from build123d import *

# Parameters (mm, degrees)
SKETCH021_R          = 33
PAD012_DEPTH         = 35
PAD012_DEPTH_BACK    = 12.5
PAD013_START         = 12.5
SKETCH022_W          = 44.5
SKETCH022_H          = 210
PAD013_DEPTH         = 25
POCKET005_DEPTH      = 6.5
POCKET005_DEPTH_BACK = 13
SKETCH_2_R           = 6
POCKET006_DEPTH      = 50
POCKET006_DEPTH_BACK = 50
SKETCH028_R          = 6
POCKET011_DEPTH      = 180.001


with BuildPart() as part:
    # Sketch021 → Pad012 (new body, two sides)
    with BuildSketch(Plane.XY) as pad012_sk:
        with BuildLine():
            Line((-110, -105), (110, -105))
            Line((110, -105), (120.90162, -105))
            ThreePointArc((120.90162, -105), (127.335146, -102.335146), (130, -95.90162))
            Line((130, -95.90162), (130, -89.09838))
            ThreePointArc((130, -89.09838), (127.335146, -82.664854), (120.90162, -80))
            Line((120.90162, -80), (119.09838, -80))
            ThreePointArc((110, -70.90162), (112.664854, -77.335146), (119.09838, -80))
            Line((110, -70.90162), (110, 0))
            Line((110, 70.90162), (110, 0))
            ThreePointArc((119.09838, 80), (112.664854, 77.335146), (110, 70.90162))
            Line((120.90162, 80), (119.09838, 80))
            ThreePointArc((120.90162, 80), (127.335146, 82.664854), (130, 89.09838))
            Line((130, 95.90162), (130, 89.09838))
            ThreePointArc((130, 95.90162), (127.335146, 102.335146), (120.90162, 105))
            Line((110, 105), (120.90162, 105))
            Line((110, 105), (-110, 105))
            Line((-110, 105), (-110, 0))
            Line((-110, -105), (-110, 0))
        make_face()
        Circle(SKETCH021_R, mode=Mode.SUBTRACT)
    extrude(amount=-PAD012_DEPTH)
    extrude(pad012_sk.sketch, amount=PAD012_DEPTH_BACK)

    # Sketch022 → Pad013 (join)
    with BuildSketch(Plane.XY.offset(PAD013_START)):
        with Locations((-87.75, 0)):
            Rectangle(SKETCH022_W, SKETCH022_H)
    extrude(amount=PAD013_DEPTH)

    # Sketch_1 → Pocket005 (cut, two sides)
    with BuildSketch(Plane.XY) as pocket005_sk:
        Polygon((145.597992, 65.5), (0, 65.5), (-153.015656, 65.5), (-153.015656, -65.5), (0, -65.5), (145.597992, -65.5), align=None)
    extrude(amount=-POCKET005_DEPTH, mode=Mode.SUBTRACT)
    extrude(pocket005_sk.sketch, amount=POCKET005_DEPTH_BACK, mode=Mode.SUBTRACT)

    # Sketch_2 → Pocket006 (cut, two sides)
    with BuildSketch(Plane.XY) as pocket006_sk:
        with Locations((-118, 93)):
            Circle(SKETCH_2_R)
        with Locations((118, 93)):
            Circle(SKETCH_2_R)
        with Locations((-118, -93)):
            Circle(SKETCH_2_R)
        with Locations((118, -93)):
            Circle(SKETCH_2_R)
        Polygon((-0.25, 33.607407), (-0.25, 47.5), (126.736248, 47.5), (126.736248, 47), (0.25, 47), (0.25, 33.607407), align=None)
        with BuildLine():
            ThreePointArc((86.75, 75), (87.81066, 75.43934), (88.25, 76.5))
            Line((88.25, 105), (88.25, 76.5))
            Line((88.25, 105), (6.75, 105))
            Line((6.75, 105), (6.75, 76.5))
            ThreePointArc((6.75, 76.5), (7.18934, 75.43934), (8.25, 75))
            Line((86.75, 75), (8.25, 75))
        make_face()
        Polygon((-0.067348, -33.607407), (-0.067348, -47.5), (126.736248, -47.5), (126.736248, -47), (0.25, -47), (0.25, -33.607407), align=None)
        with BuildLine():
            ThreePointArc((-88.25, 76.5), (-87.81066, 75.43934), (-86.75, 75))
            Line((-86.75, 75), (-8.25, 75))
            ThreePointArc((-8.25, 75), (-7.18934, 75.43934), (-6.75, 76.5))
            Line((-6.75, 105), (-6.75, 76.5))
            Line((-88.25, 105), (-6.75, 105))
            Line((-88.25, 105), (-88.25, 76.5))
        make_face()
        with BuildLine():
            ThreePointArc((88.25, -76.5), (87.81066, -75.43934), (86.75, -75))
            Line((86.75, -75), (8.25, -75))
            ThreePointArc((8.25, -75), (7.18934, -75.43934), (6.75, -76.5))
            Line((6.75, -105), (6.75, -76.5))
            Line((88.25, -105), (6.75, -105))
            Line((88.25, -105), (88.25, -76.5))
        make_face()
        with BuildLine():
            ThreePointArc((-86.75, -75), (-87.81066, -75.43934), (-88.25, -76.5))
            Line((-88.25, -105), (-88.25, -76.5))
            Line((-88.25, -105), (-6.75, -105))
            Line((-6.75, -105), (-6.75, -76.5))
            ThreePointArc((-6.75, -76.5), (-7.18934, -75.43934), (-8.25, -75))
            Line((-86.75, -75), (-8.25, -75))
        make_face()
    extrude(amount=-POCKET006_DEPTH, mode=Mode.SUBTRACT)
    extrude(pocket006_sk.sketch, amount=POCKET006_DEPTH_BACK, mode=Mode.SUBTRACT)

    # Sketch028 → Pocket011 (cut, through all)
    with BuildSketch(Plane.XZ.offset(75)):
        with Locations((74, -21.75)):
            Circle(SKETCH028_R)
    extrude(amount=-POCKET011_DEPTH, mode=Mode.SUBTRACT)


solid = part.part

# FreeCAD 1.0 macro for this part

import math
import FreeCAD as App
import Part
import Sketcher

doc = App.newDocument("Part")
body = doc.addObject("PartDesign::Body", "Body")

# Sketch on XY plane
sketch1 = body.newObject("Sketcher::SketchObject", "Sketch")
sketch1.AttachmentSupport = (doc.getObject("XY_Plane"), [""])
sketch1.MapMode = "FlatFace"
sketch1.addGeometry(Part.LineSegment(App.Vector(-110, -105, 0), App.Vector(120.9, -105, 0)), False)
sketch1.addGeometry(Part.ArcOfCircle(Part.Circle(App.Vector(120.9, -95.9, 0), App.Vector(0, 0, 1), 9.1), math.radians(-90), math.radians(0)), False)
sketch1.addGeometry(Part.LineSegment(App.Vector(130, -95.9, 0), App.Vector(130, -89.1, 0)), False)
sketch1.addGeometry(Part.ArcOfCircle(Part.Circle(App.Vector(120.9, -89.1, 0), App.Vector(0, 0, 1), 9.1), math.radians(0), math.radians(90)), False)
sketch1.addGeometry(Part.LineSegment(App.Vector(120.9, -80, 0), App.Vector(119.1, -80, 0)), False)
sketch1.addGeometry(Part.ArcOfCircle(Part.Circle(App.Vector(119.1, -70.9, 0), App.Vector(0, 0, 1), 9.1), math.radians(-180), math.radians(-90)), False)
sketch1.addGeometry(Part.LineSegment(App.Vector(110, -70.9, 0), App.Vector(110, 70.9, 0)), False)
sketch1.addGeometry(Part.ArcOfCircle(Part.Circle(App.Vector(119.1, 70.9, 0), App.Vector(0, 0, 1), 9.1), math.radians(90), math.radians(180)), False)
sketch1.addGeometry(Part.LineSegment(App.Vector(119.1, 80, 0), App.Vector(120.9, 80, 0)), False)
sketch1.addGeometry(Part.ArcOfCircle(Part.Circle(App.Vector(120.9, 89.1, 0), App.Vector(0, 0, 1), 9.1), math.radians(-90), math.radians(0)), False)
sketch1.addGeometry(Part.LineSegment(App.Vector(130, 89.1, 0), App.Vector(130, 95.9, 0)), False)
sketch1.addGeometry(Part.ArcOfCircle(Part.Circle(App.Vector(120.9, 95.9, 0), App.Vector(0, 0, 1), 9.1), math.radians(0), math.radians(90)), False)
sketch1.addGeometry(Part.LineSegment(App.Vector(120.9, 105, 0), App.Vector(-110, 105, 0)), False)
sketch1.addGeometry(Part.LineSegment(App.Vector(-110, 105, 0), App.Vector(-110, -105, 0)), False)
sketch1.addGeometry(Part.Circle(App.Vector(0, 0, 0), App.Vector(0, 0, 1), 33), False)
sketch1.addConstraint(Sketcher.Constraint("Tangent", 0, 2, 1, 1))
sketch1.addConstraint(Sketcher.Constraint("Tangent", 1, 2, 2, 1))
sketch1.addConstraint(Sketcher.Constraint("Tangent", 2, 2, 3, 1))
sketch1.addConstraint(Sketcher.Constraint("Tangent", 3, 2, 4, 1))
sketch1.addConstraint(Sketcher.Constraint("Tangent", 4, 2, 5, 2))
sketch1.addConstraint(Sketcher.Constraint("Tangent", 5, 1, 6, 1))
sketch1.addConstraint(Sketcher.Constraint("Tangent", 6, 2, 7, 2))
sketch1.addConstraint(Sketcher.Constraint("Tangent", 7, 1, 8, 1))
sketch1.addConstraint(Sketcher.Constraint("Tangent", 8, 2, 9, 1))
sketch1.addConstraint(Sketcher.Constraint("Tangent", 9, 2, 10, 1))
sketch1.addConstraint(Sketcher.Constraint("Tangent", 10, 2, 11, 1))
sketch1.addConstraint(Sketcher.Constraint("Tangent", 11, 2, 12, 1))
sketch1.addConstraint(Sketcher.Constraint("Coincident", 12, 2, 13, 1))
sketch1.addConstraint(Sketcher.Constraint("Coincident", 13, 2, 0, 1))
sketch1.addConstraint(Sketcher.Constraint("Horizontal", 0))
sketch1.addConstraint(Sketcher.Constraint("Vertical", 2))
sketch1.addConstraint(Sketcher.Constraint("Horizontal", 4))
sketch1.addConstraint(Sketcher.Constraint("Vertical", 6))
sketch1.addConstraint(Sketcher.Constraint("Horizontal", 8))
sketch1.addConstraint(Sketcher.Constraint("Vertical", 10))
sketch1.addConstraint(Sketcher.Constraint("Horizontal", 12))
sketch1.addConstraint(Sketcher.Constraint("Vertical", 13))
sketch1.addConstraint(Sketcher.Constraint("Coincident", 14, 3, -1, 1))
sketch1.addConstraint(Sketcher.Constraint("Equal", 1, 3))
sketch1.addConstraint(Sketcher.Constraint("Equal", 3, 5))
sketch1.addConstraint(Sketcher.Constraint("Equal", 5, 7))
sketch1.addConstraint(Sketcher.Constraint("Equal", 7, 9))
sketch1.addConstraint(Sketcher.Constraint("Equal", 9, 11))
sketch1.addConstraint(Sketcher.Constraint("Symmetric", 3, 3, 9, 3, -1))
sketch1.addConstraint(Sketcher.Constraint("Equal", 2, 10))
sketch1.addConstraint(Sketcher.Constraint("Diameter", 14, 66.0))
sketch1.addConstraint(Sketcher.Constraint("DistanceY", 13, 2, 13, 1, 210.0))
sketch1.addConstraint(Sketcher.Constraint("DistanceX", -1, 1, 1, 2, 130.0))
sketch1.addConstraint(Sketcher.Constraint("DistanceY", 3, 2, -1, 1, 80.0))
sketch1.addConstraint(Sketcher.Constraint("DistanceX", -1, 1, 5, 1, 110.0))
sketch1.addConstraint(Sketcher.Constraint("DistanceX", 12, 2, -1, 1, 110.0))
sketch1.addConstraint(Sketcher.Constraint("Radius", 1, 9.098381))
pad1 = body.newObject("PartDesign::Pad", "Pad")
pad1.Profile = sketch1
pad1.Type = "TwoLengths"
pad1.Length = 35
pad1.Length2 = 12.5
pad1.Reversed = True

# Sketch on XY plane
sketch2 = body.newObject("Sketcher::SketchObject", "Sketch001")
sketch2.AttachmentSupport = (doc.getObject("XY_Plane"), [""])
sketch2.MapMode = "FlatFace"
sketch2.AttachmentOffset = App.Placement(App.Vector(0, 0, 12.5), App.Rotation())
sketch2.addGeometry(Part.LineSegment(App.Vector(-110, 105, 0), App.Vector(-110, -105, 0)), False)
sketch2.addGeometry(Part.LineSegment(App.Vector(-110, -105, 0), App.Vector(-66, -105, 0)), False)
sketch2.addGeometry(Part.LineSegment(App.Vector(-66, -105, 0), App.Vector(-66, 105, 0)), False)
sketch2.addGeometry(Part.LineSegment(App.Vector(-66, 105, 0), App.Vector(-110, 105, 0)), False)
sketch2.addConstraint(Sketcher.Constraint("Coincident", 0, 2, 1, 1))
sketch2.addConstraint(Sketcher.Constraint("Coincident", 1, 2, 2, 1))
sketch2.addConstraint(Sketcher.Constraint("Coincident", 2, 2, 3, 1))
sketch2.addConstraint(Sketcher.Constraint("Coincident", 3, 2, 0, 1))
sketch2.addConstraint(Sketcher.Constraint("Vertical", 0))
sketch2.addConstraint(Sketcher.Constraint("Horizontal", 1))
sketch2.addConstraint(Sketcher.Constraint("Vertical", 2))
sketch2.addConstraint(Sketcher.Constraint("Horizontal", 3))
sketch2.addConstraint(Sketcher.Constraint("DistanceY", 0, 2, 0, 1, 210.0))
sketch2.addConstraint(Sketcher.Constraint("DistanceX", 1, 1, 1, 2, 44.5))
sketch2.addConstraint(Sketcher.Constraint("DistanceX", 0, 2, -1, 1, 110.0))
sketch2.addConstraint(Sketcher.Constraint("DistanceY", 0, 2, -1, 1, 105.0))
pad2 = body.newObject("PartDesign::Pad", "Pad001")
pad2.Profile = sketch2
pad2.Length = 25

# Sketch on XY plane
sketch3 = body.newObject("Sketcher::SketchObject", "Sketch002")
sketch3.AttachmentSupport = (doc.getObject("XY_Plane"), [""])
sketch3.MapMode = "FlatFace"
sketch3.addGeometry(Part.LineSegment(App.Vector(146, 66, 0), App.Vector(-153, 66, 0)), False)
sketch3.addGeometry(Part.LineSegment(App.Vector(-153, 66, 0), App.Vector(-153, -66, 0)), False)
sketch3.addGeometry(Part.LineSegment(App.Vector(-153, -66, 0), App.Vector(146, -66, 0)), False)
sketch3.addGeometry(Part.LineSegment(App.Vector(146, -66, 0), App.Vector(146, 66, 0)), False)
sketch3.addConstraint(Sketcher.Constraint("Coincident", 0, 2, 1, 1))
sketch3.addConstraint(Sketcher.Constraint("Coincident", 1, 2, 2, 1))
sketch3.addConstraint(Sketcher.Constraint("Coincident", 2, 2, 3, 1))
sketch3.addConstraint(Sketcher.Constraint("Coincident", 3, 2, 0, 1))
sketch3.addConstraint(Sketcher.Constraint("Horizontal", 0))
sketch3.addConstraint(Sketcher.Constraint("Vertical", 1))
sketch3.addConstraint(Sketcher.Constraint("Horizontal", 2))
sketch3.addConstraint(Sketcher.Constraint("Vertical", 3))
sketch3.addConstraint(Sketcher.Constraint("DistanceY", 1, 2, 1, 1, 131.0))
sketch3.addConstraint(Sketcher.Constraint("DistanceY", -1, 1, 0, 2, 65.5))
sketch3.addConstraint(Sketcher.Constraint("DistanceX", 0, 2, 0, 1, 298.613648))
sketch3.addConstraint(Sketcher.Constraint("DistanceX", -1, 1, 2, 2, 145.597992))
pocket1 = body.newObject("PartDesign::Pocket", "Pocket")
pocket1.Profile = sketch3
pocket1.Type = "TwoLengths"
pocket1.Length = 6.5
pocket1.Length2 = 13

# Sketch on XY plane
sketch4 = body.newObject("Sketcher::SketchObject", "Sketch003")
sketch4.AttachmentSupport = (doc.getObject("XY_Plane"), [""])
sketch4.MapMode = "FlatFace"
sketch4.addGeometry(Part.Circle(App.Vector(-118, 93, 0), App.Vector(0, 0, 1), 6), False)
sketch4.addGeometry(Part.Circle(App.Vector(118, 93, 0), App.Vector(0, 0, 1), 6), False)
sketch4.addGeometry(Part.Circle(App.Vector(-118, -93, 0), App.Vector(0, 0, 1), 6), False)
sketch4.addGeometry(Part.Circle(App.Vector(118, -93, 0), App.Vector(0, 0, 1), 6), False)
sketch4.addGeometry(Part.LineSegment(App.Vector(-0.25, 47.5, 0), App.Vector(-0.25, 33.61, 0)), False)
sketch4.addGeometry(Part.LineSegment(App.Vector(-0.25, 33.61, 0), App.Vector(0.25, 33.61, 0)), False)
sketch4.addGeometry(Part.LineSegment(App.Vector(0.25, 33.61, 0), App.Vector(0.25, 47, 0)), False)
sketch4.addGeometry(Part.LineSegment(App.Vector(0.25, 47, 0), App.Vector(126.74, 47, 0)), False)
sketch4.addGeometry(Part.LineSegment(App.Vector(126.74, 47, 0), App.Vector(126.74, 47.5, 0)), False)
sketch4.addGeometry(Part.LineSegment(App.Vector(126.74, 47.5, 0), App.Vector(-0.25, 47.5, 0)), False)
sketch4.addGeometry(Part.ArcOfCircle(Part.Circle(App.Vector(86.75, 76.5, 0), App.Vector(0, 0, 1), 1.5), math.radians(-90), math.radians(0)), False)
sketch4.addGeometry(Part.LineSegment(App.Vector(88.25, 76.5, 0), App.Vector(88.25, 105, 0)), False)
sketch4.addGeometry(Part.LineSegment(App.Vector(88.25, 105, 0), App.Vector(6.75, 105, 0)), False)
sketch4.addGeometry(Part.LineSegment(App.Vector(6.75, 105, 0), App.Vector(6.75, 76.5, 0)), False)
sketch4.addGeometry(Part.ArcOfCircle(Part.Circle(App.Vector(8.25, 76.5, 0), App.Vector(0, 0, 1), 1.5), math.radians(-180), math.radians(-90)), False)
sketch4.addGeometry(Part.LineSegment(App.Vector(8.25, 75, 0), App.Vector(86.75, 75, 0)), False)
sketch4.addGeometry(Part.LineSegment(App.Vector(-0.07, -33.61, 0), App.Vector(-0.07, -47.5, 0)), False)
sketch4.addGeometry(Part.LineSegment(App.Vector(-0.07, -47.5, 0), App.Vector(126.74, -47.5, 0)), False)
sketch4.addGeometry(Part.LineSegment(App.Vector(126.74, -47.5, 0), App.Vector(126.74, -47, 0)), False)
sketch4.addGeometry(Part.LineSegment(App.Vector(126.74, -47, 0), App.Vector(0.25, -47, 0)), False)
sketch4.addGeometry(Part.LineSegment(App.Vector(0.25, -47, 0), App.Vector(0.25, -33.61, 0)), False)
sketch4.addGeometry(Part.LineSegment(App.Vector(0.25, -33.61, 0), App.Vector(-0.07, -33.61, 0)), False)
sketch4.addGeometry(Part.ArcOfCircle(Part.Circle(App.Vector(-86.75, 76.5, 0), App.Vector(0, 0, 1), 1.5), math.radians(-180), math.radians(-90)), False)
sketch4.addGeometry(Part.LineSegment(App.Vector(-86.75, 75, 0), App.Vector(-8.25, 75, 0)), False)
sketch4.addGeometry(Part.ArcOfCircle(Part.Circle(App.Vector(-8.25, 76.5, 0), App.Vector(0, 0, 1), 1.5), math.radians(-90), math.radians(0)), False)
sketch4.addGeometry(Part.LineSegment(App.Vector(-6.75, 76.5, 0), App.Vector(-6.75, 105, 0)), False)
sketch4.addGeometry(Part.LineSegment(App.Vector(-6.75, 105, 0), App.Vector(-88.25, 105, 0)), False)
sketch4.addGeometry(Part.LineSegment(App.Vector(-88.25, 105, 0), App.Vector(-88.25, 76.5, 0)), False)
sketch4.addGeometry(Part.ArcOfCircle(Part.Circle(App.Vector(86.75, -76.5, 0), App.Vector(0, 0, 1), 1.5), math.radians(0), math.radians(90)), False)
sketch4.addGeometry(Part.LineSegment(App.Vector(86.75, -75, 0), App.Vector(8.25, -75, 0)), False)
sketch4.addGeometry(Part.ArcOfCircle(Part.Circle(App.Vector(8.25, -76.5, 0), App.Vector(0, 0, 1), 1.5), math.radians(90), math.radians(180)), False)
sketch4.addGeometry(Part.LineSegment(App.Vector(6.75, -76.5, 0), App.Vector(6.75, -105, 0)), False)
sketch4.addGeometry(Part.LineSegment(App.Vector(6.75, -105, 0), App.Vector(88.25, -105, 0)), False)
sketch4.addGeometry(Part.LineSegment(App.Vector(88.25, -105, 0), App.Vector(88.25, -76.5, 0)), False)
sketch4.addGeometry(Part.ArcOfCircle(Part.Circle(App.Vector(-86.75, -76.5, 0), App.Vector(0, 0, 1), 1.5), math.radians(90), math.radians(180)), False)
sketch4.addGeometry(Part.LineSegment(App.Vector(-88.25, -76.5, 0), App.Vector(-88.25, -105, 0)), False)
sketch4.addGeometry(Part.LineSegment(App.Vector(-88.25, -105, 0), App.Vector(-6.75, -105, 0)), False)
sketch4.addGeometry(Part.LineSegment(App.Vector(-6.75, -105, 0), App.Vector(-6.75, -76.5, 0)), False)
sketch4.addGeometry(Part.ArcOfCircle(Part.Circle(App.Vector(-8.25, -76.5, 0), App.Vector(0, 0, 1), 1.5), math.radians(0), math.radians(90)), False)
sketch4.addGeometry(Part.LineSegment(App.Vector(-8.25, -75, 0), App.Vector(-86.75, -75, 0)), False)
sketch4.addConstraint(Sketcher.Constraint("Coincident", 4, 2, 5, 1))
sketch4.addConstraint(Sketcher.Constraint("Coincident", 5, 2, 6, 1))
sketch4.addConstraint(Sketcher.Constraint("Coincident", 6, 2, 7, 1))
sketch4.addConstraint(Sketcher.Constraint("Coincident", 7, 2, 8, 1))
sketch4.addConstraint(Sketcher.Constraint("Coincident", 8, 2, 9, 1))
sketch4.addConstraint(Sketcher.Constraint("Coincident", 9, 2, 4, 1))
sketch4.addConstraint(Sketcher.Constraint("Tangent", 10, 2, 11, 1))
sketch4.addConstraint(Sketcher.Constraint("Coincident", 11, 2, 12, 1))
sketch4.addConstraint(Sketcher.Constraint("Coincident", 12, 2, 13, 1))
sketch4.addConstraint(Sketcher.Constraint("Tangent", 13, 2, 14, 1))
sketch4.addConstraint(Sketcher.Constraint("Tangent", 14, 2, 15, 1))
sketch4.addConstraint(Sketcher.Constraint("Tangent", 15, 2, 10, 1))
sketch4.addConstraint(Sketcher.Constraint("Coincident", 16, 2, 17, 1))
sketch4.addConstraint(Sketcher.Constraint("Coincident", 17, 2, 18, 1))
sketch4.addConstraint(Sketcher.Constraint("Coincident", 18, 2, 19, 1))
sketch4.addConstraint(Sketcher.Constraint("Coincident", 19, 2, 20, 1))
sketch4.addConstraint(Sketcher.Constraint("Coincident", 20, 2, 21, 1))
sketch4.addConstraint(Sketcher.Constraint("Coincident", 21, 2, 16, 1))
sketch4.addConstraint(Sketcher.Constraint("Tangent", 22, 2, 23, 1))
sketch4.addConstraint(Sketcher.Constraint("Tangent", 23, 2, 24, 1))
sketch4.addConstraint(Sketcher.Constraint("Tangent", 24, 2, 25, 1))
sketch4.addConstraint(Sketcher.Constraint("Coincident", 25, 2, 26, 1))
sketch4.addConstraint(Sketcher.Constraint("Coincident", 26, 2, 27, 1))
sketch4.addConstraint(Sketcher.Constraint("Tangent", 27, 2, 22, 1))
sketch4.addConstraint(Sketcher.Constraint("Tangent", 28, 2, 29, 1))
sketch4.addConstraint(Sketcher.Constraint("Tangent", 29, 2, 30, 1))
sketch4.addConstraint(Sketcher.Constraint("Tangent", 30, 2, 31, 1))
sketch4.addConstraint(Sketcher.Constraint("Coincident", 31, 2, 32, 1))
sketch4.addConstraint(Sketcher.Constraint("Coincident", 32, 2, 33, 1))
sketch4.addConstraint(Sketcher.Constraint("Tangent", 33, 2, 28, 1))
sketch4.addConstraint(Sketcher.Constraint("Tangent", 34, 2, 35, 1))
sketch4.addConstraint(Sketcher.Constraint("Coincident", 35, 2, 36, 1))
sketch4.addConstraint(Sketcher.Constraint("Coincident", 36, 2, 37, 1))
sketch4.addConstraint(Sketcher.Constraint("Tangent", 37, 2, 38, 1))
sketch4.addConstraint(Sketcher.Constraint("Tangent", 38, 2, 39, 1))
sketch4.addConstraint(Sketcher.Constraint("Tangent", 39, 2, 34, 1))
sketch4.addConstraint(Sketcher.Constraint("Vertical", 4))
sketch4.addConstraint(Sketcher.Constraint("Horizontal", 5))
sketch4.addConstraint(Sketcher.Constraint("Vertical", 6))
sketch4.addConstraint(Sketcher.Constraint("Horizontal", 7))
sketch4.addConstraint(Sketcher.Constraint("Vertical", 8))
sketch4.addConstraint(Sketcher.Constraint("Horizontal", 9))
sketch4.addConstraint(Sketcher.Constraint("Vertical", 11))
sketch4.addConstraint(Sketcher.Constraint("Horizontal", 12))
sketch4.addConstraint(Sketcher.Constraint("Vertical", 13))
sketch4.addConstraint(Sketcher.Constraint("Horizontal", 15))
sketch4.addConstraint(Sketcher.Constraint("Vertical", 16))
sketch4.addConstraint(Sketcher.Constraint("Horizontal", 17))
sketch4.addConstraint(Sketcher.Constraint("Vertical", 18))
sketch4.addConstraint(Sketcher.Constraint("Horizontal", 19))
sketch4.addConstraint(Sketcher.Constraint("Vertical", 20))
sketch4.addConstraint(Sketcher.Constraint("Horizontal", 21))
sketch4.addConstraint(Sketcher.Constraint("Horizontal", 23))
sketch4.addConstraint(Sketcher.Constraint("Vertical", 25))
sketch4.addConstraint(Sketcher.Constraint("Horizontal", 26))
sketch4.addConstraint(Sketcher.Constraint("Vertical", 27))
sketch4.addConstraint(Sketcher.Constraint("Horizontal", 29))
sketch4.addConstraint(Sketcher.Constraint("Vertical", 31))
sketch4.addConstraint(Sketcher.Constraint("Horizontal", 32))
sketch4.addConstraint(Sketcher.Constraint("Vertical", 33))
sketch4.addConstraint(Sketcher.Constraint("Vertical", 35))
sketch4.addConstraint(Sketcher.Constraint("Horizontal", 36))
sketch4.addConstraint(Sketcher.Constraint("Vertical", 37))
sketch4.addConstraint(Sketcher.Constraint("Horizontal", 39))
sketch4.addConstraint(Sketcher.Constraint("Equal", 0, 1))
sketch4.addConstraint(Sketcher.Constraint("Equal", 1, 2))
sketch4.addConstraint(Sketcher.Constraint("Equal", 2, 3))
sketch4.addConstraint(Sketcher.Constraint("Equal", 10, 14))
sketch4.addConstraint(Sketcher.Constraint("Equal", 14, 22))
sketch4.addConstraint(Sketcher.Constraint("Equal", 22, 24))
sketch4.addConstraint(Sketcher.Constraint("Equal", 24, 28))
sketch4.addConstraint(Sketcher.Constraint("Equal", 28, 30))
sketch4.addConstraint(Sketcher.Constraint("Equal", 30, 34))
sketch4.addConstraint(Sketcher.Constraint("Equal", 34, 38))
sketch4.addConstraint(Sketcher.Constraint("Symmetric", 1, 3, 2, 3, -1, 1))
sketch4.addConstraint(Sketcher.Constraint("Symmetric", 0, 3, 3, 3, -1, 1))
sketch4.addConstraint(Sketcher.Constraint("Symmetric", 22, 3, 28, 3, -1, 1))
sketch4.addConstraint(Sketcher.Constraint("Symmetric", 10, 3, 34, 3, -1, 1))
sketch4.addConstraint(Sketcher.Constraint("Symmetric", 4, 2, 20, 2, -1, 1))
sketch4.addConstraint(Sketcher.Constraint("Symmetric", 25, 2, 31, 2, -1, 1))
sketch4.addConstraint(Sketcher.Constraint("Symmetric", 12, 2, 36, 2, -1, 1))
sketch4.addConstraint(Sketcher.Constraint("Symmetric", 0, 3, 1, 3, -2))
sketch4.addConstraint(Sketcher.Constraint("Symmetric", 10, 3, 22, 3, -2))
sketch4.addConstraint(Sketcher.Constraint("Symmetric", 12, 2, 25, 2, -2))
sketch4.addConstraint(Sketcher.Constraint("Symmetric", 8, 2, 17, 2, -1))
sketch4.addConstraint(Sketcher.Constraint("Symmetric", 6, 2, 19, 2, -1))
sketch4.addConstraint(Sketcher.Constraint("Equal", 5, 8))
sketch4.addConstraint(Sketcher.Constraint("Diameter", 0, 12.0))
sketch4.addConstraint(Sketcher.Constraint("Radius", 10, 1.500001))
sketch4.addConstraint(Sketcher.Constraint("DistanceX", 5, 1, 5, 2, 0.5))
sketch4.addConstraint(Sketcher.Constraint("DistanceX", 12, 2, 12, 1, 81.5))
sketch4.addConstraint(Sketcher.Constraint("DistanceY", 11, 1, 11, 2, 28.5))
sketch4.addConstraint(Sketcher.Constraint("DistanceX", 0, 3, -1, 1, 118.0))
sketch4.addConstraint(Sketcher.Constraint("DistanceY", -1, 1, 0, 3, 93.0))
sketch4.addConstraint(Sketcher.Constraint("DistanceY", -1, 1, 6, 2, 47.0))
sketch4.addConstraint(Sketcher.Constraint("DistanceY", -1, 1, 11, 2, 105.0))
sketch4.addConstraint(Sketcher.Constraint("DistanceX", 22, 3, 14, 3, 95.0))
sketch4.addConstraint(Sketcher.Constraint("DistanceX", 7, 1, 7, 2, 126.486248))
sketch4.addConstraint(Sketcher.Constraint("DistanceX", 17, 1, 17, 2, 126.803596))
sketch4.addConstraint(Sketcher.Constraint("DistanceY", 4, 2, 4, 1, 13.892593))
pocket2 = body.newObject("PartDesign::Pocket", "Pocket001")
pocket2.Profile = sketch4
pocket2.Type = "ThroughAll"
pocket2.Midplane = True

# Sketch on XZ plane
sketch5 = body.newObject("Sketcher::SketchObject", "Sketch004")
sketch5.AttachmentSupport = (doc.getObject("XZ_Plane"), [""])
sketch5.MapMode = "FlatFace"
sketch5.AttachmentOffset = App.Placement(App.Vector(0, 0, 75), App.Rotation())
sketch5.addGeometry(Part.Circle(App.Vector(74, -22, 0), App.Vector(0, 0, 1), 6), False)
sketch5.addConstraint(Sketcher.Constraint("Diameter", 0, 12.0))
sketch5.addConstraint(Sketcher.Constraint("DistanceX", -1, 1, 0, 3, 74.0))
sketch5.addConstraint(Sketcher.Constraint("DistanceY", 0, 3, -1, 1, 21.75))
pocket3 = body.newObject("PartDesign::Pocket", "Pocket002")
pocket3.Profile = sketch5
pocket3.Type = "ThroughAll"

doc.recompute()
